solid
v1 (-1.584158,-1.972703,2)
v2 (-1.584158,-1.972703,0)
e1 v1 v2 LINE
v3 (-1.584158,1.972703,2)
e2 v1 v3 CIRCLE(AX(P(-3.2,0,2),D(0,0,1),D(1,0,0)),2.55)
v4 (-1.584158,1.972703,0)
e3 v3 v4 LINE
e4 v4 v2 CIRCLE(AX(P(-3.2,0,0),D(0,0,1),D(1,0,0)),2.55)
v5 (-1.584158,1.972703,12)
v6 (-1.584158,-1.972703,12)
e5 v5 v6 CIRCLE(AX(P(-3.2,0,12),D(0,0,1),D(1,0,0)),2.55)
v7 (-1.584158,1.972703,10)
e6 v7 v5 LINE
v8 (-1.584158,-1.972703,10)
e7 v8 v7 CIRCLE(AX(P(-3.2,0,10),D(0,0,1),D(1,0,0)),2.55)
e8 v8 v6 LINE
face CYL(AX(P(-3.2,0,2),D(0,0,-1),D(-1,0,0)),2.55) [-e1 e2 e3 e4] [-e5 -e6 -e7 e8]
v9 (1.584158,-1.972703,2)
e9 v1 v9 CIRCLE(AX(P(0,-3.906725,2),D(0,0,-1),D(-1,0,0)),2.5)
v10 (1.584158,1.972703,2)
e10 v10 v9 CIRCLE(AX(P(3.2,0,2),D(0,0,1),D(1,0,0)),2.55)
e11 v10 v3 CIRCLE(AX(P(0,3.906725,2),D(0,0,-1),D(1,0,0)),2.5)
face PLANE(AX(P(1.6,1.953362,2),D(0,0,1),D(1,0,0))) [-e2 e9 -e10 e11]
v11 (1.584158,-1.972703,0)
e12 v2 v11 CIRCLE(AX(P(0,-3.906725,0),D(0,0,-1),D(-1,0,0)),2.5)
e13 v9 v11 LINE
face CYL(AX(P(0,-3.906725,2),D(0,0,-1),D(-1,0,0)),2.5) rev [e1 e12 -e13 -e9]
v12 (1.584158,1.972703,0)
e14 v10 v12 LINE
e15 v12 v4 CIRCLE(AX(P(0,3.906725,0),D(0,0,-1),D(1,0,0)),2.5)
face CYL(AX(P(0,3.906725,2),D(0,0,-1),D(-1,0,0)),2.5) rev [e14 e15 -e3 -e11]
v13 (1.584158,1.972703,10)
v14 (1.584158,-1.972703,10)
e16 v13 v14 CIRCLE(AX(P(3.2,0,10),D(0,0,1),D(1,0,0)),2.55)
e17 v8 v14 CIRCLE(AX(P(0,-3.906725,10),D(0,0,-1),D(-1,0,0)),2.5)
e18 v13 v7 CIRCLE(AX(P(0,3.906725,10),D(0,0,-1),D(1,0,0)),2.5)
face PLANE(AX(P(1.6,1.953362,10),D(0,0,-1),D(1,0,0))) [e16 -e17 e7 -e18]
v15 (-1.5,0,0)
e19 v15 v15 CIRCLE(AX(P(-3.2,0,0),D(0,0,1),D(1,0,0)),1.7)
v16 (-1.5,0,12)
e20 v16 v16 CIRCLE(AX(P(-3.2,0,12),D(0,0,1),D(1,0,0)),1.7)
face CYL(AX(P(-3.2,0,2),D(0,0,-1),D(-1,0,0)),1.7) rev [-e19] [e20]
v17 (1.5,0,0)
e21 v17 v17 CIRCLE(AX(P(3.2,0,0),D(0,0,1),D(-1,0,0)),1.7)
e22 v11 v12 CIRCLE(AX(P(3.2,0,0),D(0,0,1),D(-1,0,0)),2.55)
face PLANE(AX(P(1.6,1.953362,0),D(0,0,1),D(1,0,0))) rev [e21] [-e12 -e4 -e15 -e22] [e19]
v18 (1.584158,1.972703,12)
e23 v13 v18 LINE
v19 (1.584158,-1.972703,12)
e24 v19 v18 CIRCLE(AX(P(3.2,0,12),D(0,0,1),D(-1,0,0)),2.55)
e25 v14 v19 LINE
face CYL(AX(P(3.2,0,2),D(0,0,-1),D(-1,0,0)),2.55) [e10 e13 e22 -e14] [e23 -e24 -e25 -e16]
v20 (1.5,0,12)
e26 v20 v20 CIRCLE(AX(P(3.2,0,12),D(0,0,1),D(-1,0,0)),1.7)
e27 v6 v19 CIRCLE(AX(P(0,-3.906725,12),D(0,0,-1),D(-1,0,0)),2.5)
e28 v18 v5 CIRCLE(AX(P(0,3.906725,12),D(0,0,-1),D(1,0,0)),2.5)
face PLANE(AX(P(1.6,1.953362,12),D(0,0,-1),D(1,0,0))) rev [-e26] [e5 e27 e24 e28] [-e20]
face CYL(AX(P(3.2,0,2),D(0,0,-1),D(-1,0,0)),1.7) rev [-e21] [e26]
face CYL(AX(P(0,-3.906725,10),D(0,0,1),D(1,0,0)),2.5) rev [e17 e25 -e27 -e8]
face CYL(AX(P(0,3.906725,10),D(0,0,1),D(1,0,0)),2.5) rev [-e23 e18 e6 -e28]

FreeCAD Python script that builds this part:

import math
import FreeCAD as App
import Part
import Sketcher

doc = App.newDocument("Part")
body = doc.addObject("PartDesign::Body", "Body")

# Sketch on XY plane
sketch1 = body.newObject("Sketcher::SketchObject", "Sketch")
sketch1.AttachmentSupport = (doc.getObject("XY_Plane"), [""])
sketch1.MapMode = "FlatFace"
sketch1.addGeometry([
    Part.ArcOfCircle(Part.Circle(App.Vector(-3.2, 0, 0), App.Vector(0, 0, 1), 2.5), math.radians(51), math.radians(309)),  # 0
    Part.ArcOfCircle(Part.Circle(App.Vector(0, -3.9, 0), App.Vector(0, 0, 1), 2.5), math.radians(51), math.radians(129)),  # 1
    Part.ArcOfCircle(Part.Circle(App.Vector(3.2, 0, 0), App.Vector(0, 0, 1), 2.5), math.radians(-129), math.radians(129)),  # 2
    Part.ArcOfCircle(Part.Circle(App.Vector(0, 3.9, 0), App.Vector(0, 0, 1), 2.5), math.radians(-129), math.radians(-51)),  # 3
    Part.Circle(App.Vector(-3.2, 0, 0), App.Vector(0, 0, 1), 1.7),  # 4
    Part.Circle(App.Vector(3.2, 0, 0), App.Vector(0, 0, 1), 1.7),  # 5
], False)
sketch1.addConstraint([
    Sketcher.Constraint("Tangent", 0, 2, 1, 2),
    Sketcher.Constraint("Tangent", 1, 1, 2, 1),
    Sketcher.Constraint("Tangent", 2, 2, 3, 2),
    Sketcher.Constraint("Tangent", 3, 1, 0, 1),
    Sketcher.Constraint("Coincident", 4, 3, 0, 3),
    Sketcher.Constraint("Coincident", 5, 3, 2, 3),
    Sketcher.Constraint("Equal", 0, 2),
    Sketcher.Constraint("Equal", 1, 3),
    Sketcher.Constraint("Equal", 4, 5),
    Sketcher.Constraint("Symmetric", 0, 3, 2, 3, -1, 1),
    Sketcher.Constraint("PointOnObject", 0, 3, -1),
    Sketcher.Constraint("Diameter", 4, 3.4),
    Sketcher.Constraint("Radius", 1, 2.5),
    Sketcher.Constraint("Radius", 0, 2.55),
    Sketcher.Constraint("DistanceX", 0, 3, -1, 1, 3.2),
])
pad1 = body.newObject("PartDesign::Pad", "Pad")
pad1.Profile = sketch1
pad1.Length = 2

# Sketch on XY plane
sketch2 = body.newObject("Sketcher::SketchObject", "Sketch001")
sketch2.AttachmentSupport = (doc.getObject("XY_Plane"), [""])
sketch2.MapMode = "FlatFace"
sketch2.AttachmentOffset = App.Placement(App.Vector(0, 0, 2), App.Rotation())
sketch2.addGeometry([
    Part.Circle(App.Vector(-3.2, 0, 0), App.Vector(0, 0, 1), 2.5),
    Part.Circle(App.Vector(-3.2, 0, 0), App.Vector(0, 0, 1), 1.7),
    Part.Circle(App.Vector(3.2, 0, 0), App.Vector(0, 0, 1), 2.5),
    Part.Circle(App.Vector(3.2, 0, 0), App.Vector(0, 0, 1), 1.7),
], False)
sketch2.addConstraint([
    Sketcher.Constraint("Coincident", 1, 3, 0, 3),
    Sketcher.Constraint("Coincident", 3, 3, 2, 3),
    Sketcher.Constraint("Equal", 0, 2),
    Sketcher.Constraint("Equal", 1, 3),
    Sketcher.Constraint("Symmetric", 0, 3, 2, 3, -1, 1),
    Sketcher.Constraint("PointOnObject", 0, 3, -1),
    Sketcher.Constraint("Diameter", 0, 5.1),
    Sketcher.Constraint("Diameter", 1, 3.4),
    Sketcher.Constraint("DistanceX", 0, 3, -1, 1, 3.2),
])
pad2 = body.newObject("PartDesign::Pad", "Pad001")
pad2.Profile = sketch2
pad2.Length = 8
doc.recompute()

datumplane = body.newObject("PartDesign::Plane", "DatumPlane")
datumplane.AttachmentSupport = (doc.getObject("XY_Plane"), [""])
datumplane.MapMode = "FlatFace"
datumplane.AttachmentOffset = App.Placement(App.Vector(0, 0, 6), App.Rotation())
mirrored = body.newObject("PartDesign::Mirrored", "Mirrored")
mirrored.Originals = [pad1]
mirrored.MirrorPlane = (datumplane, [""])
body.Tip = mirrored

doc.recompute()
